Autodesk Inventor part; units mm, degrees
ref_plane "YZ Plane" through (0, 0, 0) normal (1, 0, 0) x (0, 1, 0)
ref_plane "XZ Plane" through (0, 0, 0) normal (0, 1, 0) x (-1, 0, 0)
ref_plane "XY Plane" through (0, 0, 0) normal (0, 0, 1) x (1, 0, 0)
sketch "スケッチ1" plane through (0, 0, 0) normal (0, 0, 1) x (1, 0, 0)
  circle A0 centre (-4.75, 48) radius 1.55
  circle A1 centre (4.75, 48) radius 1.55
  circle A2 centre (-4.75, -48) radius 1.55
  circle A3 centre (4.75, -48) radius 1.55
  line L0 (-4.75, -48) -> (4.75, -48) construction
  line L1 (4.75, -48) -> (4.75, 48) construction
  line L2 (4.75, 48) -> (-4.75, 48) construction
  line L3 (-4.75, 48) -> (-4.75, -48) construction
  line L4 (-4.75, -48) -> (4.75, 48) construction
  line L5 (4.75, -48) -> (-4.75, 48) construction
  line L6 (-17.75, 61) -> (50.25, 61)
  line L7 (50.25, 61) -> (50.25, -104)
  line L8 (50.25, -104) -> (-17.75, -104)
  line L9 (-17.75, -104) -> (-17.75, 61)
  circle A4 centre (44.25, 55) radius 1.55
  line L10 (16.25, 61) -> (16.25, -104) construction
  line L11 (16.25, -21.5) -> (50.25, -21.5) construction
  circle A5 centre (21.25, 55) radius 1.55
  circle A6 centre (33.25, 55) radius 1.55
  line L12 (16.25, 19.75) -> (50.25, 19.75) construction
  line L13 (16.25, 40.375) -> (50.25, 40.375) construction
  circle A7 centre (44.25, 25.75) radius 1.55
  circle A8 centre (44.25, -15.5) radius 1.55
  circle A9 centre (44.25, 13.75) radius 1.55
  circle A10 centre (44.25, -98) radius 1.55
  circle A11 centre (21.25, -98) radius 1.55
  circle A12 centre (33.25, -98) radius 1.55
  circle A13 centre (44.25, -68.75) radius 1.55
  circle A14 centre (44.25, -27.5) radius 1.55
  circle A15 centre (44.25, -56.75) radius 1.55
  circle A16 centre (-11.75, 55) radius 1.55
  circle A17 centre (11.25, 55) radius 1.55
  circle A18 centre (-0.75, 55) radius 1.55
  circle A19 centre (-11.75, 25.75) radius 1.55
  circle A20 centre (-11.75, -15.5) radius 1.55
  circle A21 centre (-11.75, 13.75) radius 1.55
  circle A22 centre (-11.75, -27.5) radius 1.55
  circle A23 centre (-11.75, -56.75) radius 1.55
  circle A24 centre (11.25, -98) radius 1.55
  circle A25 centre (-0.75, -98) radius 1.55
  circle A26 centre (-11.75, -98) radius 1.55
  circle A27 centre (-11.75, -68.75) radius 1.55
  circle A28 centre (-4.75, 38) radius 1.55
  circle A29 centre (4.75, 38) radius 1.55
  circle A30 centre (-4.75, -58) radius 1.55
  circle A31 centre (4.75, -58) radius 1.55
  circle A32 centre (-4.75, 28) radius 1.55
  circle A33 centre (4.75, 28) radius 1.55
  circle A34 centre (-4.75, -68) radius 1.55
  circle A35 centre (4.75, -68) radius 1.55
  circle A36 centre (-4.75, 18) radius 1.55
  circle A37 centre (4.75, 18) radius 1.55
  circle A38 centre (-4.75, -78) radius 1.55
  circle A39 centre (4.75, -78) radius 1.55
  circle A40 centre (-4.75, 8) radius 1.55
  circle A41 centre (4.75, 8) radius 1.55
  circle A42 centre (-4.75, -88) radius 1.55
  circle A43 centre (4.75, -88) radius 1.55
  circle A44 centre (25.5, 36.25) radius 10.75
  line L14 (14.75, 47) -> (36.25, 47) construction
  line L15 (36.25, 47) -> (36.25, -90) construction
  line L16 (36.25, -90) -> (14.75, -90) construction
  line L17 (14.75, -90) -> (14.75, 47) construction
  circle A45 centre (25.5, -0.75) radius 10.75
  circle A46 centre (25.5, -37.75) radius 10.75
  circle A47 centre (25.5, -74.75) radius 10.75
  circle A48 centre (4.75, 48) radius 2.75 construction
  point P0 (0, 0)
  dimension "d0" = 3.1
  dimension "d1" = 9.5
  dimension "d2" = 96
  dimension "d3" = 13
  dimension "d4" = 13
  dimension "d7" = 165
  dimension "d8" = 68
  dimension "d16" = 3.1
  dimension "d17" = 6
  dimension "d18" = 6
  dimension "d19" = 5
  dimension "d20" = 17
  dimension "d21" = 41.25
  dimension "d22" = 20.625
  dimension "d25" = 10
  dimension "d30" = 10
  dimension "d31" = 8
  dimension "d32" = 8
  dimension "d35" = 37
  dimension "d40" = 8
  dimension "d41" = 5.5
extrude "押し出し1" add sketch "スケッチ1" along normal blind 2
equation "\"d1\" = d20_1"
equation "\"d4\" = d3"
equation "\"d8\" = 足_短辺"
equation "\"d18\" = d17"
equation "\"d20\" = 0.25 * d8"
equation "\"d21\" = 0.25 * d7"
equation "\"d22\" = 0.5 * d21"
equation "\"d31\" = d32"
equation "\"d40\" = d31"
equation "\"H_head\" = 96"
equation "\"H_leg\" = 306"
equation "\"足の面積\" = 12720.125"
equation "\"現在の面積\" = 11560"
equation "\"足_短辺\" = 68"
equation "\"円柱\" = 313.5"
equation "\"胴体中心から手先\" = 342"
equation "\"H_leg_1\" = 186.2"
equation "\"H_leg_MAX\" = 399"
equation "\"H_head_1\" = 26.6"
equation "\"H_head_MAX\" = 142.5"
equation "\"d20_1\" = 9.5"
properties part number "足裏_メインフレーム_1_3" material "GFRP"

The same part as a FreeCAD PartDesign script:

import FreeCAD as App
import Part
import Sketcher

V = App.Vector

doc = App.newDocument("Part")
params = doc.addObject("Spreadsheet::Sheet", "Params")
for row, (alias, value) in enumerate([
    ("sketch1_diameter", "3.1 mm"),
    ("sketch1_width", "68 mm"),
    ("sketch1_height", "165 mm"),
    ("sketch1_diameter2", "21.5 mm"),
    ("pad1_length", "2 mm"),
], start=1):
    params.set(f"A{row}", alias)
    params.set(f"B{row}", "=" + value)
    params.setAlias(f"B{row}", alias)

body = doc.addObject("PartDesign::Body", "Body")

# Sketch on XY plane
sketch1 = body.newObject("Sketcher::SketchObject", "Sketch")
sketch1.AttachmentSupport = (doc.getObject("XY_Plane"), [""])
sketch1.MapMode = "FlatFace"
sketch1.addGeometry(Part.LineSegment(V(50.2, 61, 0), V(-17.8, 61, 0)), False)
sketch1.addGeometry(Part.LineSegment(V(-17.8, 61, 0), V(-17.8, -104, 0)), False)
sketch1.addGeometry(Part.LineSegment(V(-17.8, -104, 0), V(50.2, -104, 0)), False)
sketch1.addGeometry(Part.LineSegment(V(50.2, -104, 0), V(50.2, 61, 0)), False)
sketch1.addGeometry(Part.Circle(V(-11.8, -98, 0), V(0, 0, 1), 1.6), False)
sketch1.addGeometry(Part.Circle(V(-4.8, -88, 0), V(0, 0, 1), 1.6), False)
sketch1.addGeometry(Part.Circle(V(-11.8, -68.8, 0), V(0, 0, 1), 1.6), False)
sketch1.addGeometry(Part.Circle(V(-4.8, -78, 0), V(0, 0, 1), 1.6), False)
sketch1.addGeometry(Part.Circle(V(-4.8, -68, 0), V(0, 0, 1), 1.6), False)
sketch1.addGeometry(Part.Circle(V(-0.8, -98, 0), V(0, 0, 1), 1.6), False)
sketch1.addGeometry(Part.Circle(V(4.8, -88, 0), V(0, 0, 1), 1.6), False)
sketch1.addGeometry(Part.Circle(V(11.2, -98, 0), V(0, 0, 1), 1.6), False)
sketch1.addGeometry(Part.Circle(V(4.8, -78, 0), V(0, 0, 1), 1.6), False)
sketch1.addGeometry(Part.Circle(V(4.8, -68, 0), V(0, 0, 1), 1.6), False)
sketch1.addGeometry(Part.Circle(V(-11.8, -56.8, 0), V(0, 0, 1), 1.6), False)
sketch1.addGeometry(Part.Circle(V(-4.8, -58, 0), V(0, 0, 1), 1.6), False)
sketch1.addGeometry(Part.Circle(V(-4.8, -48, 0), V(0, 0, 1), 1.6), False)
sketch1.addGeometry(Part.Circle(V(-11.8, -27.5, 0), V(0, 0, 1), 1.6), False)
sketch1.addGeometry(Part.Circle(V(4.8, -58, 0), V(0, 0, 1), 1.6), False)
sketch1.addGeometry(Part.Circle(V(4.8, -48, 0), V(0, 0, 1), 1.6), False)
sketch1.addGeometry(Part.Circle(V(21.2, -98, 0), V(0, 0, 1), 1.6), False)
sketch1.addGeometry(Part.Circle(V(25.5, -74.8, 0), V(0, 0, 1), 10.8), False)
sketch1.addGeometry(Part.Circle(V(33.2, -98, 0), V(0, 0, 1), 1.6), False)
sketch1.addGeometry(Part.Circle(V(44.2, -98, 0), V(0, 0, 1), 1.6), False)
sketch1.addGeometry(Part.Circle(V(44.2, -68.8, 0), V(0, 0, 1), 1.6), False)
sketch1.addGeometry(Part.Circle(V(25.5, -37.8, 0), V(0, 0, 1), 10.8), False)
sketch1.addGeometry(Part.Circle(V(44.2, -56.8, 0), V(0, 0, 1), 1.6), False)
sketch1.addGeometry(Part.Circle(V(44.2, -27.5, 0), V(0, 0, 1), 1.6), False)
sketch1.addGeometry(Part.Circle(V(-11.8, -15.5, 0), V(0, 0, 1), 1.6), False)
sketch1.addGeometry(Part.Circle(V(-11.8, 13.8, 0), V(0, 0, 1), 1.6), False)
sketch1.addGeometry(Part.Circle(V(-4.8, 8, 0), V(0, 0, 1), 1.6), False)
sketch1.addGeometry(Part.Circle(V(-4.8, 18, 0), V(0, 0, 1), 1.6), False)
sketch1.addGeometry(Part.Circle(V(4.8, 8, 0), V(0, 0, 1), 1.6), False)
sketch1.addGeometry(Part.Circle(V(4.8, 18, 0), V(0, 0, 1), 1.6), False)
sketch1.addGeometry(Part.Circle(V(-11.8, 25.8, 0), V(0, 0, 1), 1.6), False)
sketch1.addGeometry(Part.Circle(V(-4.8, 28, 0), V(0, 0, 1), 1.6), False)
sketch1.addGeometry(Part.Circle(V(-4.8, 38, 0), V(0, 0, 1), 1.6), False)
sketch1.addGeometry(Part.Circle(V(-11.8, 55, 0), V(0, 0, 1), 1.6), False)
sketch1.addGeometry(Part.Circle(V(-4.8, 48, 0), V(0, 0, 1), 1.6), False)
sketch1.addGeometry(Part.Circle(V(4.8, 28, 0), V(0, 0, 1), 1.6), False)
sketch1.addGeometry(Part.Circle(V(4.8, 38, 0), V(0, 0, 1), 1.6), False)
sketch1.addGeometry(Part.Circle(V(4.8, 48, 0), V(0, 0, 1), 1.6), False)
sketch1.addGeometry(Part.Circle(V(-0.8, 55, 0), V(0, 0, 1), 1.6), False)
sketch1.addGeometry(Part.Circle(V(11.2, 55, 0), V(0, 0, 1), 1.6), False)
sketch1.addGeometry(Part.Circle(V(25.5, -0.8, 0), V(0, 0, 1), 10.8), False)
sketch1.addGeometry(Part.Circle(V(44.2, -15.5, 0), V(0, 0, 1), 1.6), False)
sketch1.addGeometry(Part.Circle(V(44.2, 13.8, 0), V(0, 0, 1), 1.6), False)
sketch1.addGeometry(Part.Circle(V(25.5, 36.2, 0), V(0, 0, 1), 10.8), False)
sketch1.addGeometry(Part.Circle(V(21.2, 55, 0), V(0, 0, 1), 1.6), False)
sketch1.addGeometry(Part.Circle(V(44.2, 25.8, 0), V(0, 0, 1), 1.6), False)
sketch1.addGeometry(Part.Circle(V(33.2, 55, 0), V(0, 0, 1), 1.6), False)
sketch1.addGeometry(Part.Circle(V(44.2, 55, 0), V(0, 0, 1), 1.6), False)
sketch1.addConstraint(Sketcher.Constraint("Coincident", 0, 2, 1, 1))
sketch1.addConstraint(Sketcher.Constraint("Coincident", 1, 2, 2, 1))
sketch1.addConstraint(Sketcher.Constraint("Coincident", 2, 2, 3, 1))
sketch1.addConstraint(Sketcher.Constraint("Coincident", 3, 2, 0, 1))
sketch1.addConstraint(Sketcher.Constraint("Horizontal", 0))
sketch1.addConstraint(Sketcher.Constraint("Vertical", 1))
sketch1.addConstraint(Sketcher.Constraint("Horizontal", 2))
sketch1.addConstraint(Sketcher.Constraint("Vertical", 3))
sketch1.addConstraint(Sketcher.Constraint("Equal", 4, 5))
sketch1.addConstraint(Sketcher.Constraint("Equal", 5, 6))
sketch1.addConstraint(Sketcher.Constraint("Equal", 6, 7))
sketch1.addConstraint(Sketcher.Constraint("Equal", 7, 8))
sketch1.addConstraint(Sketcher.Constraint("Equal", 8, 9))
sketch1.addConstraint(Sketcher.Constraint("Equal", 9, 10))
sketch1.addConstraint(Sketcher.Constraint("Equal", 10, 11))
sketch1.addConstraint(Sketcher.Constraint("Equal", 11, 12))
sketch1.addConstraint(Sketcher.Constraint("Equal", 12, 13))
sketch1.addConstraint(Sketcher.Constraint("Equal", 13, 14))
sketch1.addConstraint(Sketcher.Constraint("Equal", 14, 15))
sketch1.addConstraint(Sketcher.Constraint("Equal", 15, 16))
sketch1.addConstraint(Sketcher.Constraint("Equal", 16, 17))
sketch1.addConstraint(Sketcher.Constraint("Equal", 17, 18))
sketch1.addConstraint(Sketcher.Constraint("Equal", 18, 19))
sketch1.addConstraint(Sketcher.Constraint("Equal", 19, 20))
sketch1.addConstraint(Sketcher.Constraint("Equal", 20, 22))
sketch1.addConstraint(Sketcher.Constraint("Equal", 22, 23))
sketch1.addConstraint(Sketcher.Constraint("Equal", 23, 24))
sketch1.addConstraint(Sketcher.Constraint("Equal", 21, 25))
sketch1.addConstraint(Sketcher.Constraint("Equal", 24, 26))
sketch1.addConstraint(Sketcher.Constraint("Equal", 26, 27))
sketch1.addConstraint(Sketcher.Constraint("Equal", 27, 28))
sketch1.addConstraint(Sketcher.Constraint("Equal", 28, 29))
sketch1.addConstraint(Sketcher.Constraint("Equal", 29, 30))
sketch1.addConstraint(Sketcher.Constraint("Equal", 30, 31))
sketch1.addConstraint(Sketcher.Constraint("Equal", 31, 32))
sketch1.addConstraint(Sketcher.Constraint("Equal", 32, 33))
sketch1.addConstraint(Sketcher.Constraint("Equal", 33, 34))
sketch1.addConstraint(Sketcher.Constraint("Equal", 34, 35))
sketch1.addConstraint(Sketcher.Constraint("Equal", 35, 36))
sketch1.addConstraint(Sketcher.Constraint("Equal", 36, 37))
sketch1.addConstraint(Sketcher.Constraint("Equal", 37, 38))
sketch1.addConstraint(Sketcher.Constraint("Equal", 38, 39))
sketch1.addConstraint(Sketcher.Constraint("Equal", 39, 40))
sketch1.addConstraint(Sketcher.Constraint("Equal", 40, 41))
sketch1.addConstraint(Sketcher.Constraint("Equal", 41, 42))
sketch1.addConstraint(Sketcher.Constraint("Equal", 42, 43))
sketch1.addConstraint(Sketcher.Constraint("Equal", 25, 44))
sketch1.addConstraint(Sketcher.Constraint("Equal", 43, 45))
sketch1.addConstraint(Sketcher.Constraint("Equal", 45, 46))
sketch1.addConstraint(Sketcher.Constraint("Equal", 44, 47))
sketch1.addConstraint(Sketcher.Constraint("Equal", 46, 48))
sketch1.addConstraint(Sketcher.Constraint("Equal", 48, 49))
sketch1.addConstraint(Sketcher.Constraint("Equal", 49, 50))
sketch1.addConstraint(Sketcher.Constraint("Equal", 50, 51))
sketch1.addConstraint(Sketcher.Constraint("Symmetric", 19, 3, 38, 3, -1, 1))
sketch1.addConstraint(Sketcher.Constraint("Symmetric", 16, 3, 41, 3, -1, 1))
sketch1.addConstraint(Sketcher.Constraint("Symmetric", 5, 3, 10, 3, -2))
sketch1.addConstraint(Sketcher.Constraint("Symmetric", 7, 3, 12, 3, -2))
sketch1.addConstraint(Sketcher.Constraint("Symmetric", 8, 3, 13, 3, -2))
sketch1.addConstraint(Sketcher.Constraint("Symmetric", 15, 3, 18, 3, -2))
sketch1.addConstraint(Sketcher.Constraint("Symmetric", 16, 3, 19, 3, -2))
sketch1.addConstraint(Sketcher.Constraint("Symmetric", 30, 3, 32, 3, -2))
sketch1.addConstraint(Sketcher.Constraint("Symmetric", 31, 3, 33, 3, -2))
sketch1.addConstraint(Sketcher.Constraint("Symmetric", 35, 3, 39, 3, -2))
sketch1.addConstraint(Sketcher.Constraint("Symmetric", 36, 3, 40, 3, -2))
sketch1.addConstraint(Sketcher.Constraint("Horizontal", 4, 3, 9, 3))
sketch1.addConstraint(Sketcher.Constraint("Horizontal", 9, 3, 11, 3))
sketch1.addConstraint(Sketcher.Constraint("Horizontal", 11, 3, 20, 3))
sketch1.addConstraint(Sketcher.Constraint("Horizontal", 20, 3, 22, 3))
sketch1.addConstraint(Sketcher.Constraint("Horizontal", 22, 3, 23, 3))
sketch1.addConstraint(Sketcher.Constraint("Horizontal", 6, 3, 24, 3))
sketch1.addConstraint(Sketcher.Constraint("Horizontal", 14, 3, 26, 3))
sketch1.addConstraint(Sketcher.Constraint("Horizontal", 17, 3, 27, 3))
sketch1.addConstraint(Sketcher.Constraint("Horizontal", 37, 3, 42, 3))
sketch1.addConstraint(Sketcher.Constraint("Horizontal", 42, 3, 43, 3))
sketch1.addConstraint(Sketcher.Constraint("Horizontal", 28, 3, 45, 3))
sketch1.addConstraint(Sketcher.Constraint("Horizontal", 29, 3, 46, 3))
sketch1.addConstraint(Sketcher.Constraint("Horizontal", 43, 3, 48, 3))
sketch1.addConstraint(Sketcher.Constraint("Horizontal", 34, 3, 49, 3))
sketch1.addConstraint(Sketcher.Constraint("Horizontal", 48, 3, 50, 3))
sketch1.addConstraint(Sketcher.Constraint("Horizontal", 50, 3, 51, 3))
sketch1.addConstraint(Sketcher.Constraint("Vertical", 4, 3, 6, 3))
sketch1.addConstraint(Sketcher.Constraint("Vertical", 5, 3, 7, 3))
sketch1.addConstraint(Sketcher.Constraint("Vertical", 7, 3, 8, 3))
sketch1.addConstraint(Sketcher.Constraint("Vertical", 6, 3, 14, 3))
sketch1.addConstraint(Sketcher.Constraint("Vertical", 8, 3, 15, 3))
sketch1.addConstraint(Sketcher.Constraint("Vertical", 15, 3, 16, 3))
sketch1.addConstraint(Sketcher.Constraint("Vertical", 14, 3, 17, 3))
sketch1.addConstraint(Sketcher.Constraint("Vertical", 23, 3, 24, 3))
sketch1.addConstraint(Sketcher.Constraint("Vertical", 21, 3, 25, 3))
sketch1.addConstraint(Sketcher.Constraint("Vertical", 24, 3, 26, 3))
sketch1.addConstraint(Sketcher.Constraint("Vertical", 26, 3, 27, 3))
sketch1.addConstraint(Sketcher.Constraint("Vertical", 17, 3, 28, 3))
sketch1.addConstraint(Sketcher.Constraint("Vertical", 28, 3, 29, 3))
sketch1.addConstraint(Sketcher.Constraint("Vertical", 16, 3, 30, 3))
sketch1.addConstraint(Sketcher.Constraint("Vertical", 30, 3, 31, 3))
sketch1.addConstraint(Sketcher.Constraint("Vertical", 29, 3, 34, 3))
sketch1.addConstraint(Sketcher.Constraint("Vertical", 31, 3, 35, 3))
sketch1.addConstraint(Sketcher.Constraint("Vertical", 35, 3, 36, 3))
sketch1.addConstraint(Sketcher.Constraint("Vertical", 34, 3, 37, 3))
sketch1.addConstraint(Sketcher.Constraint("Vertical", 9, 3, 42, 3))
sketch1.addConstraint(Sketcher.Constraint("Vertical", 11, 3, 43, 3))
sketch1.addConstraint(Sketcher.Constraint("Vertical", 25, 3, 44, 3))
sketch1.addConstraint(Sketcher.Constraint("Vertical", 27, 3, 45, 3))
sketch1.addConstraint(Sketcher.Constraint("Vertical", 45, 3, 46, 3))
sketch1.addConstraint(Sketcher.Constraint("Vertical", 44, 3, 47, 3))
sketch1.addConstraint(Sketcher.Constraint("Vertical", 20, 3, 48, 3))
sketch1.addConstraint(Sketcher.Constraint("Vertical", 46, 3, 49, 3))
sketch1.addConstraint(Sketcher.Constraint("Vertical", 22, 3, 50, 3))
sketch1.addConstraint(Sketcher.Constraint("Vertical", 49, 3, 51, 3))
sketch1.addConstraint(Sketcher.Constraint("Diameter", 4, 3.1))
sketch1.addConstraint(Sketcher.Constraint("DistanceX", 0, 2, 0, 1, 68.0))
sketch1.addConstraint(Sketcher.Constraint("DistanceY", 1, 2, 1, 1, 165.0))
sketch1.addConstraint(Sketcher.Constraint("DistanceY", 8, 3, -1, 1, 68.0))
sketch1.addConstraint(Sketcher.Constraint("DistanceY", -1, 1, 30, 3, 8.0))
sketch1.addConstraint(Sketcher.Constraint("DistanceY", 4, 3, 5, 3, 10.0))
sketch1.addConstraint(Sketcher.Constraint("DistanceY", 5, 3, 7, 3, 10.0))
sketch1.addConstraint(Sketcher.Constraint("DistanceY", 7, 3, 8, 3, 10.0))
sketch1.addConstraint(Sketcher.Constraint("DistanceY", 8, 3, 15, 3, 10.0))
sketch1.addConstraint(Sketcher.Constraint("DistanceY", 15, 3, 16, 3, 10.0))
sketch1.addConstraint(Sketcher.Constraint("DistanceX", 11, 3, 20, 3, 10.0))
sketch1.addConstraint(Sketcher.Constraint("DistanceY", 21, 3, 24, 3, 6.0))
sketch1.addConstraint(Sketcher.Constraint("DistanceY", 30, 3, 31, 3, 10.0))
sketch1.addConstraint(Sketcher.Constraint("DistanceY", 31, 3, 35, 3, 10.0))
sketch1.addConstraint(Sketcher.Constraint("DistanceY", 35, 3, 36, 3, 10.0))
sketch1.addConstraint(Sketcher.Constraint("DistanceY", 36, 3, 37, 3, 17.0))
sketch1.addConstraint(Sketcher.Constraint("DistanceX", 0, 2, 37, 3, 6.0))
sketch1.addConstraint(Sketcher.Constraint("DistanceY", 37, 3, 0, 2, 6.0))
sketch1.addConstraint(Sketcher.Constraint("DistanceX", 0, 2, 42, 3, 17.0))
sketch1.addConstraint(Sketcher.Constraint("DistanceX", 0, 2, 38, 3, 13.0))
sketch1.addConstraint(Sketcher.Constraint("DistanceX", 23, 3, 2, 2, 6.0))
sketch1.addConstraint(Sketcher.Constraint("DistanceX", 22, 3, 2, 2, 17.0))
sketch1.addConstraint(Sketcher.Constraint("Diameter", 21, 21.5))
sketch1.addConstraint(Sketcher.Constraint("DistanceX", 5, 3, 10, 3, 9.5))
sketch1.addConstraint(Sketcher.Constraint("DistanceY", 6, 3, 17, 3, 41.25))
sketch1.addConstraint(Sketcher.Constraint("DistanceY", 14, 3, 28, 3, 41.25))
sketch1.addConstraint(Sketcher.Constraint("DistanceY", 17, 3, 29, 3, 41.25))
sketch1.addConstraint(Sketcher.Constraint("DistanceX", 9, 3, 11, 3, 12.0))
sketch1.addConstraint(Sketcher.Constraint("DistanceY", 6, 3, 14, 3, 12.0))
sketch1.addConstraint(Sketcher.Constraint("DistanceY", 24, 3, 25, 3, 31.0))
sketch1.addConstraint(Sketcher.Constraint("DistanceY", 29, 3, 34, 3, 12.0))
sketch1.addConstraint(Sketcher.Constraint("DistanceY", 17, 3, -1, 1, 27.5))
sketch1.addConstraint(Sketcher.Constraint("DistanceX", -1, 1, 21, 3, 25.5))
sketch1.addConstraint(Sketcher.Constraint("DistanceY", 44, 3, 46, 3, 14.5))
sketch1.addConstraint(Sketcher.Constraint("DistanceY", 49, 3, 47, 3, 10.5))
sketch1.setExpression("Constraints[110]", "Params.sketch1_diameter")
sketch1.setExpression("Constraints[111]", "Params.sketch1_width")
sketch1.setExpression("Constraints[112]", "Params.sketch1_height")
sketch1.setExpression("Constraints[132]", "Params.sketch1_diameter2")
pad1 = body.newObject("PartDesign::Pad", "Pad")
pad1.Profile = sketch1
pad1.setExpression("Length", "Params.pad1_length")

doc.recompute()
